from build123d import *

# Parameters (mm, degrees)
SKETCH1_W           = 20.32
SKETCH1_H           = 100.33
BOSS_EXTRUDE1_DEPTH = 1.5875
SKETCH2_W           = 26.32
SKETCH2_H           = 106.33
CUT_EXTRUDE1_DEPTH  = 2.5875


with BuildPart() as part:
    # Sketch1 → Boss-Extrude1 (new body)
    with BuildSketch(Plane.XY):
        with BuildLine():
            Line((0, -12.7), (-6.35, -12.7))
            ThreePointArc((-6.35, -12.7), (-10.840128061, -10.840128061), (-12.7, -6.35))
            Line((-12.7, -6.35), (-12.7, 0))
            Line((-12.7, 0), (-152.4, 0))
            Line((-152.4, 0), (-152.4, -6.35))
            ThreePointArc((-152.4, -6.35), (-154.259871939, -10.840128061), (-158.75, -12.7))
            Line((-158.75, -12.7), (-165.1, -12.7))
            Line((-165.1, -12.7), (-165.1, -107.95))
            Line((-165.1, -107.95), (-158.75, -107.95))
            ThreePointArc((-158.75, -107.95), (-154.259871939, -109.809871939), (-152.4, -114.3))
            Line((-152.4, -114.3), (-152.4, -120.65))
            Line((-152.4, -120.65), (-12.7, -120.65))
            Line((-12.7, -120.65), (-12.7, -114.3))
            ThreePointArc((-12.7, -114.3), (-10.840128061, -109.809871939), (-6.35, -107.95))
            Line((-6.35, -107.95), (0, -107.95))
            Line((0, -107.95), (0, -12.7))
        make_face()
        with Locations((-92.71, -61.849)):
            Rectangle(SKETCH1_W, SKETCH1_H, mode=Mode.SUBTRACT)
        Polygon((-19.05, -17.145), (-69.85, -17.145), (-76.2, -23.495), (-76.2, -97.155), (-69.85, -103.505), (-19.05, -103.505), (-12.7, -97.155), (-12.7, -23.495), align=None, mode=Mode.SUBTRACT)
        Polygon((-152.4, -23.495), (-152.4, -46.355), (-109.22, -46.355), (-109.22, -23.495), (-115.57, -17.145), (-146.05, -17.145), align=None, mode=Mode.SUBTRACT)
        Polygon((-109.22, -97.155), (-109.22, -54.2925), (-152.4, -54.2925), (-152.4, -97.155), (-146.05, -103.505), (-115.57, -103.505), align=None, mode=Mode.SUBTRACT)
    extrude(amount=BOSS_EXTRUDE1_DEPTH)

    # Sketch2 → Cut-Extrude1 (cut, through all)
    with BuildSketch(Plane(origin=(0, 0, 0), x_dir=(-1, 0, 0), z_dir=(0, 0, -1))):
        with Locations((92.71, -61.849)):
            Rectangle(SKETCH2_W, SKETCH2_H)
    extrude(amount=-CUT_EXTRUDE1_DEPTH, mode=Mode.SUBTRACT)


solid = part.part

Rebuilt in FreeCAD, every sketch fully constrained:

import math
import FreeCAD as App
import Part
import Sketcher

V = App.Vector
Q = App.Units.Quantity

doc = App.newDocument("Part")
body = doc.addObject("PartDesign::Body", "Body")

# Sketch on XY plane
sketch1 = body.newObject("Sketcher::SketchObject", "Sketch")
sketch1.AttachmentSupport = (doc.getObject("XY_Plane"), [""])
sketch1.MapMode = "FlatFace"
sketch1.addGeometry([
    Part.LineSegment(V(0, -13, 0), V(-6, -13, 0)),  # 0
    Part.ArcOfCircle(Part.Circle(V(-6, -6, 0), V(0, 0, 1), 6), math.radians(180), math.radians(270)),  # 1
    Part.LineSegment(V(-13, -6, 0), V(-13, 0, 0)),  # 2
    Part.LineSegment(V(-13, 0, 0), V(-152, 0, 0)),  # 3
    Part.LineSegment(V(-152, 0, 0), V(-152, -6, 0)),  # 4
    Part.ArcOfCircle(Part.Circle(V(-159, -6, 0), V(0, 0, 1), 6), math.radians(-90), math.radians(0)),  # 5
    Part.LineSegment(V(-159, -13, 0), V(-165, -13, 0)),  # 6
    Part.LineSegment(V(-165, -13, 0), V(-165, -108, 0)),  # 7
    Part.LineSegment(V(-165, -108, 0), V(-159, -108, 0)),  # 8
    Part.ArcOfCircle(Part.Circle(V(-159, -114, 0), V(0, 0, 1), 6), math.radians(0), math.radians(90)),  # 9
    Part.LineSegment(V(-152, -114, 0), V(-152, -121, 0)),  # 10
    Part.LineSegment(V(-152, -121, 0), V(-13, -121, 0)),  # 11
    Part.LineSegment(V(-13, -121, 0), V(-13, -114, 0)),  # 12
    Part.ArcOfCircle(Part.Circle(V(-6, -114, 0), V(0, 0, 1), 6), math.radians(90), math.radians(180)),  # 13
    Part.LineSegment(V(-6, -108, 0), V(0, -108, 0)),  # 14
    Part.LineSegment(V(0, -108, 0), V(0, -13, 0)),  # 15
    Part.LineSegment(V(-109, -54, 0), V(-109, -97, 0)),  # 16
    Part.LineSegment(V(-109, -97, 0), V(-116, -104, 0)),  # 17
    Part.LineSegment(V(-116, -104, 0), V(-146, -104, 0)),  # 18
    Part.LineSegment(V(-146, -104, 0), V(-152, -97, 0)),  # 19
    Part.LineSegment(V(-152, -97, 0), V(-152, -54, 0)),  # 20
    Part.LineSegment(V(-152, -54, 0), V(-109, -54, 0)),  # 21
    Part.LineSegment(V(-83, -112, 0), V(-103, -112, 0)),  # 22
    Part.LineSegment(V(-103, -112, 0), V(-103, -12, 0)),  # 23
    Part.LineSegment(V(-103, -12, 0), V(-83, -12, 0)),  # 24
    Part.LineSegment(V(-83, -12, 0), V(-83, -112, 0)),  # 25
    Part.LineSegment(V(-152, -46, 0), V(-152, -23, 0)),  # 26
    Part.LineSegment(V(-152, -23, 0), V(-146, -17, 0)),  # 27
    Part.LineSegment(V(-146, -17, 0), V(-116, -17, 0)),  # 28
    Part.LineSegment(V(-116, -17, 0), V(-109, -23, 0)),  # 29
    Part.LineSegment(V(-109, -23, 0), V(-109, -46, 0)),  # 30
    Part.LineSegment(V(-109, -46, 0), V(-152, -46, 0)),  # 31
    Part.LineSegment(V(-70, -17, 0), V(-19, -17, 0)),  # 32
    Part.LineSegment(V(-19, -17, 0), V(-13, -23, 0)),  # 33
    Part.LineSegment(V(-13, -23, 0), V(-13, -97, 0)),  # 34
    Part.LineSegment(V(-13, -97, 0), V(-19, -104, 0)),  # 35
    Part.LineSegment(V(-19, -104, 0), V(-70, -104, 0)),  # 36
    Part.LineSegment(V(-70, -104, 0), V(-76, -97, 0)),  # 37
    Part.LineSegment(V(-76, -97, 0), V(-76, -23, 0)),  # 38
    Part.LineSegment(V(-76, -23, 0), V(-70, -17, 0)),  # 39
], False)
sketch1.addConstraint([
    Sketcher.Constraint("Tangent", 0, 2, 1, 2),
    Sketcher.Constraint("Tangent", 1, 1, 2, 1),
    Sketcher.Constraint("Coincident", 2, 2, 3, 1),
    Sketcher.Constraint("Coincident", 3, 2, 4, 1),
    Sketcher.Constraint("Tangent", 4, 2, 5, 2),
    Sketcher.Constraint("Tangent", 5, 1, 6, 1),
    Sketcher.Constraint("Coincident", 6, 2, 7, 1),
    Sketcher.Constraint("Coincident", 7, 2, 8, 1),
    Sketcher.Constraint("Tangent", 8, 2, 9, 2),
    Sketcher.Constraint("Tangent", 9, 1, 10, 1),
    Sketcher.Constraint("Coincident", 10, 2, 11, 1),
    Sketcher.Constraint("Coincident", 11, 2, 12, 1),
    Sketcher.Constraint("Tangent", 12, 2, 13, 2),
    Sketcher.Constraint("Tangent", 13, 1, 14, 1),
    Sketcher.Constraint("Coincident", 14, 2, 15, 1),
    Sketcher.Constraint("Coincident", 15, 2, 0, 1),
    Sketcher.Constraint("Coincident", 16, 2, 17, 1),
    Sketcher.Constraint("Coincident", 17, 2, 18, 1),
    Sketcher.Constraint("Coincident", 18, 2, 19, 1),
    Sketcher.Constraint("Coincident", 19, 2, 20, 1),
    Sketcher.Constraint("Coincident", 20, 2, 21, 1),
    Sketcher.Constraint("Coincident", 21, 2, 16, 1),
    Sketcher.Constraint("Coincident", 22, 2, 23, 1),
    Sketcher.Constraint("Coincident", 23, 2, 24, 1),
    Sketcher.Constraint("Coincident", 24, 2, 25, 1),
    Sketcher.Constraint("Coincident", 25, 2, 22, 1),
    Sketcher.Constraint("Coincident", 26, 2, 27, 1),
    Sketcher.Constraint("Coincident", 27, 2, 28, 1),
    Sketcher.Constraint("Coincident", 28, 2, 29, 1),
    Sketcher.Constraint("Coincident", 29, 2, 30, 1),
    Sketcher.Constraint("Coincident", 30, 2, 31, 1),
    Sketcher.Constraint("Coincident", 31, 2, 26, 1),
    Sketcher.Constraint("Coincident", 32, 2, 33, 1),
    Sketcher.Constraint("Coincident", 33, 2, 34, 1),
    Sketcher.Constraint("Coincident", 34, 2, 35, 1),
    Sketcher.Constraint("Coincident", 35, 2, 36, 1),
    Sketcher.Constraint("Coincident", 36, 2, 37, 1),
    Sketcher.Constraint("Coincident", 37, 2, 38, 1),
    Sketcher.Constraint("Coincident", 38, 2, 39, 1),
    Sketcher.Constraint("Coincident", 39, 2, 32, 1),
    Sketcher.Constraint("Horizontal", 0),
    Sketcher.Constraint("Vertical", 2),
    Sketcher.Constraint("Horizontal", 3),
    Sketcher.Constraint("Vertical", 4),
    Sketcher.Constraint("Horizontal", 6),
    Sketcher.Constraint("Vertical", 7),
    Sketcher.Constraint("Horizontal", 8),
    Sketcher.Constraint("Vertical", 10),
    Sketcher.Constraint("Horizontal", 11),
    Sketcher.Constraint("Vertical", 12),
    Sketcher.Constraint("Horizontal", 14),
    Sketcher.Constraint("Vertical", 15),
    Sketcher.Constraint("Vertical", 16),
    Sketcher.Constraint("Horizontal", 18),
    Sketcher.Constraint("Vertical", 20),
    Sketcher.Constraint("Horizontal", 21),
    Sketcher.Constraint("Horizontal", 22),
    Sketcher.Constraint("Vertical", 23),
    Sketcher.Constraint("Horizontal", 24),
    Sketcher.Constraint("Vertical", 25),
    Sketcher.Constraint("Vertical", 26),
    Sketcher.Constraint("Horizontal", 28),
    Sketcher.Constraint("Vertical", 30),
    Sketcher.Constraint("Horizontal", 31),
    Sketcher.Constraint("Horizontal", 32),
    Sketcher.Constraint("Vertical", 34),
    Sketcher.Constraint("Horizontal", 36),
    Sketcher.Constraint("Vertical", 38),
    Sketcher.Constraint("Equal", 1, 5),
    Sketcher.Constraint("Equal", 5, 9),
    Sketcher.Constraint("Equal", 9, 13),
    Sketcher.Constraint("PointOnObject", 2, 2, -1),
    Sketcher.Constraint("PointOnObject", 14, 2, -2),
    Sketcher.Constraint("Perpendicular", 17, 19),
    Sketcher.Constraint("Perpendicular", 19, 27),
    Sketcher.Constraint("Perpendicular", 27, 29),
    Sketcher.Constraint("Parallel", 29, 33),
    Sketcher.Constraint("Perpendicular", 33, 35),
    Sketcher.Constraint("Perpendicular", 35, 37),
    Sketcher.Constraint("Perpendicular", 37, 39),
    Sketcher.Constraint("Horizontal", 1, 3, 5, 3),
    Sketcher.Constraint("Horizontal", 9, 3, 13, 3),
    Sketcher.Constraint("Horizontal", 16, 2, 19, 2),
    Sketcher.Constraint("Horizontal", 26, 2, 29, 2),
    Sketcher.Constraint("Horizontal", 28, 2, 32, 2),
    Sketcher.Constraint("Horizontal", 29, 2, 33, 2),
    Sketcher.Constraint("Horizontal", 19, 2, 34, 2),
    Sketcher.Constraint("Horizontal", 18, 2, 35, 2),
    Sketcher.Constraint("Horizontal", 34, 2, 37, 2),
    Sketcher.Constraint("Horizontal", 33, 2, 38, 2),
    Sketcher.Constraint("Vertical", 5, 3, 9, 3),
    Sketcher.Constraint("Vertical", 1, 3, 13, 3),
    Sketcher.Constraint("Vertical", 10, 2, 19, 2),
    Sketcher.Constraint("Vertical", 20, 2, 26, 2),
    Sketcher.Constraint("Vertical", 18, 2, 27, 2),
    Sketcher.Constraint("Vertical", 17, 2, 28, 2),
    Sketcher.Constraint("Vertical", 21, 2, 29, 2),
    Sketcher.Constraint("Vertical", 12, 2, 33, 2),
    Sketcher.Constraint("Equal", 0, 6),
    Sketcher.Constraint("Equal", 14, 2),
    Sketcher.Constraint("Equal", 4, 10),
    Sketcher.Constraint("DistanceX", 32, 1, 32, 2, Q("2 in")),
    Sketcher.Constraint("Radius", 1, Q("0.25 in")),
    Sketcher.Constraint("DistanceX", 3, 2, 3, 1, Q("5.5 in")),
    Sketcher.Constraint("DistanceX", 18, 2, 18, 1, Q("1.2 in")),
    Sketcher.Constraint("DistanceX", 21, 1, 21, 2, Q("1.7 in")),
    Sketcher.Constraint("DistanceX", 22, 2, 22, 1, Q("0.8 in")),
    Sketcher.Constraint("DistanceY", 26, 1, 26, 2, Q("0.9 in")),
    Sketcher.Constraint("DistanceY", 34, 2, 34, 1, Q("2.9 in")),
    Sketcher.Constraint("DistanceX", 3, 2, -1, 1, Q("6 in")),
    Sketcher.Constraint("DistanceY", 13, 3, 0, 2, Q("4 in")),
    Sketcher.Constraint("DistanceY", 23, 1, 23, 2, Q("3.95 in")),
    Sketcher.Constraint("DistanceX", 17, 2, 22, 2, Q("0.5 in")),
    Sketcher.Constraint("DistanceY", 16, 2, 16, 1, Q("1.6875 in")),
    Sketcher.Constraint("DistanceY", 22, 2, -1, 1, Q("4.41 in")),
    Sketcher.Constraint("DistanceY", 16, 2, -1, 1, Q("3.825 in")),
])
pad1 = body.newObject("PartDesign::Pad", "Pad")
pad1.Profile = sketch1
pad1.Length = Q("0.0625 in")

# Sketch on XY plane
sketch2 = body.newObject("Sketcher::SketchObject", "Sketch001")
sketch2.AttachmentSupport = (doc.getObject("XY_Plane"), [""])
sketch2.MapMode = "FlatFace"
sketch2.addGeometry([
    Part.LineSegment(V(-80, -9, 0), V(-80, -115, 0)),
    Part.LineSegment(V(-80, -115, 0), V(-106, -115, 0)),
    Part.LineSegment(V(-106, -115, 0), V(-106, -9, 0)),
    Part.LineSegment(V(-106, -9, 0), V(-80, -9, 0)),
], False)
sketch2.addConstraint([
    Sketcher.Constraint("Coincident", 0, 2, 1, 1),
    Sketcher.Constraint("Coincident", 1, 2, 2, 1),
    Sketcher.Constraint("Coincident", 2, 2, 3, 1),
    Sketcher.Constraint("Coincident", 3, 2, 0, 1),
    Sketcher.Constraint("Vertical", 0),
    Sketcher.Constraint("Horizontal", 1),
    Sketcher.Constraint("Vertical", 2),
    Sketcher.Constraint("Horizontal", 3),
    Sketcher.Constraint("DistanceX", 1, 2, 1, 1, Q("26.32 mm")),
    Sketcher.Constraint("DistanceY", 0, 2, 0, 1, Q("106.33 mm")),
    Sketcher.Constraint("DistanceX", 0, 2, -1, 1, Q("79.55 mm")),
    Sketcher.Constraint("DistanceY", 0, 2, -1, 1, Q("115.014 mm")),
])
pocket1 = body.newObject("PartDesign::Pocket", "Pocket")
pocket1.Profile = sketch2
pocket1.Type = "ThroughAll"
pocket1.Reversed = True

doc.recompute()
